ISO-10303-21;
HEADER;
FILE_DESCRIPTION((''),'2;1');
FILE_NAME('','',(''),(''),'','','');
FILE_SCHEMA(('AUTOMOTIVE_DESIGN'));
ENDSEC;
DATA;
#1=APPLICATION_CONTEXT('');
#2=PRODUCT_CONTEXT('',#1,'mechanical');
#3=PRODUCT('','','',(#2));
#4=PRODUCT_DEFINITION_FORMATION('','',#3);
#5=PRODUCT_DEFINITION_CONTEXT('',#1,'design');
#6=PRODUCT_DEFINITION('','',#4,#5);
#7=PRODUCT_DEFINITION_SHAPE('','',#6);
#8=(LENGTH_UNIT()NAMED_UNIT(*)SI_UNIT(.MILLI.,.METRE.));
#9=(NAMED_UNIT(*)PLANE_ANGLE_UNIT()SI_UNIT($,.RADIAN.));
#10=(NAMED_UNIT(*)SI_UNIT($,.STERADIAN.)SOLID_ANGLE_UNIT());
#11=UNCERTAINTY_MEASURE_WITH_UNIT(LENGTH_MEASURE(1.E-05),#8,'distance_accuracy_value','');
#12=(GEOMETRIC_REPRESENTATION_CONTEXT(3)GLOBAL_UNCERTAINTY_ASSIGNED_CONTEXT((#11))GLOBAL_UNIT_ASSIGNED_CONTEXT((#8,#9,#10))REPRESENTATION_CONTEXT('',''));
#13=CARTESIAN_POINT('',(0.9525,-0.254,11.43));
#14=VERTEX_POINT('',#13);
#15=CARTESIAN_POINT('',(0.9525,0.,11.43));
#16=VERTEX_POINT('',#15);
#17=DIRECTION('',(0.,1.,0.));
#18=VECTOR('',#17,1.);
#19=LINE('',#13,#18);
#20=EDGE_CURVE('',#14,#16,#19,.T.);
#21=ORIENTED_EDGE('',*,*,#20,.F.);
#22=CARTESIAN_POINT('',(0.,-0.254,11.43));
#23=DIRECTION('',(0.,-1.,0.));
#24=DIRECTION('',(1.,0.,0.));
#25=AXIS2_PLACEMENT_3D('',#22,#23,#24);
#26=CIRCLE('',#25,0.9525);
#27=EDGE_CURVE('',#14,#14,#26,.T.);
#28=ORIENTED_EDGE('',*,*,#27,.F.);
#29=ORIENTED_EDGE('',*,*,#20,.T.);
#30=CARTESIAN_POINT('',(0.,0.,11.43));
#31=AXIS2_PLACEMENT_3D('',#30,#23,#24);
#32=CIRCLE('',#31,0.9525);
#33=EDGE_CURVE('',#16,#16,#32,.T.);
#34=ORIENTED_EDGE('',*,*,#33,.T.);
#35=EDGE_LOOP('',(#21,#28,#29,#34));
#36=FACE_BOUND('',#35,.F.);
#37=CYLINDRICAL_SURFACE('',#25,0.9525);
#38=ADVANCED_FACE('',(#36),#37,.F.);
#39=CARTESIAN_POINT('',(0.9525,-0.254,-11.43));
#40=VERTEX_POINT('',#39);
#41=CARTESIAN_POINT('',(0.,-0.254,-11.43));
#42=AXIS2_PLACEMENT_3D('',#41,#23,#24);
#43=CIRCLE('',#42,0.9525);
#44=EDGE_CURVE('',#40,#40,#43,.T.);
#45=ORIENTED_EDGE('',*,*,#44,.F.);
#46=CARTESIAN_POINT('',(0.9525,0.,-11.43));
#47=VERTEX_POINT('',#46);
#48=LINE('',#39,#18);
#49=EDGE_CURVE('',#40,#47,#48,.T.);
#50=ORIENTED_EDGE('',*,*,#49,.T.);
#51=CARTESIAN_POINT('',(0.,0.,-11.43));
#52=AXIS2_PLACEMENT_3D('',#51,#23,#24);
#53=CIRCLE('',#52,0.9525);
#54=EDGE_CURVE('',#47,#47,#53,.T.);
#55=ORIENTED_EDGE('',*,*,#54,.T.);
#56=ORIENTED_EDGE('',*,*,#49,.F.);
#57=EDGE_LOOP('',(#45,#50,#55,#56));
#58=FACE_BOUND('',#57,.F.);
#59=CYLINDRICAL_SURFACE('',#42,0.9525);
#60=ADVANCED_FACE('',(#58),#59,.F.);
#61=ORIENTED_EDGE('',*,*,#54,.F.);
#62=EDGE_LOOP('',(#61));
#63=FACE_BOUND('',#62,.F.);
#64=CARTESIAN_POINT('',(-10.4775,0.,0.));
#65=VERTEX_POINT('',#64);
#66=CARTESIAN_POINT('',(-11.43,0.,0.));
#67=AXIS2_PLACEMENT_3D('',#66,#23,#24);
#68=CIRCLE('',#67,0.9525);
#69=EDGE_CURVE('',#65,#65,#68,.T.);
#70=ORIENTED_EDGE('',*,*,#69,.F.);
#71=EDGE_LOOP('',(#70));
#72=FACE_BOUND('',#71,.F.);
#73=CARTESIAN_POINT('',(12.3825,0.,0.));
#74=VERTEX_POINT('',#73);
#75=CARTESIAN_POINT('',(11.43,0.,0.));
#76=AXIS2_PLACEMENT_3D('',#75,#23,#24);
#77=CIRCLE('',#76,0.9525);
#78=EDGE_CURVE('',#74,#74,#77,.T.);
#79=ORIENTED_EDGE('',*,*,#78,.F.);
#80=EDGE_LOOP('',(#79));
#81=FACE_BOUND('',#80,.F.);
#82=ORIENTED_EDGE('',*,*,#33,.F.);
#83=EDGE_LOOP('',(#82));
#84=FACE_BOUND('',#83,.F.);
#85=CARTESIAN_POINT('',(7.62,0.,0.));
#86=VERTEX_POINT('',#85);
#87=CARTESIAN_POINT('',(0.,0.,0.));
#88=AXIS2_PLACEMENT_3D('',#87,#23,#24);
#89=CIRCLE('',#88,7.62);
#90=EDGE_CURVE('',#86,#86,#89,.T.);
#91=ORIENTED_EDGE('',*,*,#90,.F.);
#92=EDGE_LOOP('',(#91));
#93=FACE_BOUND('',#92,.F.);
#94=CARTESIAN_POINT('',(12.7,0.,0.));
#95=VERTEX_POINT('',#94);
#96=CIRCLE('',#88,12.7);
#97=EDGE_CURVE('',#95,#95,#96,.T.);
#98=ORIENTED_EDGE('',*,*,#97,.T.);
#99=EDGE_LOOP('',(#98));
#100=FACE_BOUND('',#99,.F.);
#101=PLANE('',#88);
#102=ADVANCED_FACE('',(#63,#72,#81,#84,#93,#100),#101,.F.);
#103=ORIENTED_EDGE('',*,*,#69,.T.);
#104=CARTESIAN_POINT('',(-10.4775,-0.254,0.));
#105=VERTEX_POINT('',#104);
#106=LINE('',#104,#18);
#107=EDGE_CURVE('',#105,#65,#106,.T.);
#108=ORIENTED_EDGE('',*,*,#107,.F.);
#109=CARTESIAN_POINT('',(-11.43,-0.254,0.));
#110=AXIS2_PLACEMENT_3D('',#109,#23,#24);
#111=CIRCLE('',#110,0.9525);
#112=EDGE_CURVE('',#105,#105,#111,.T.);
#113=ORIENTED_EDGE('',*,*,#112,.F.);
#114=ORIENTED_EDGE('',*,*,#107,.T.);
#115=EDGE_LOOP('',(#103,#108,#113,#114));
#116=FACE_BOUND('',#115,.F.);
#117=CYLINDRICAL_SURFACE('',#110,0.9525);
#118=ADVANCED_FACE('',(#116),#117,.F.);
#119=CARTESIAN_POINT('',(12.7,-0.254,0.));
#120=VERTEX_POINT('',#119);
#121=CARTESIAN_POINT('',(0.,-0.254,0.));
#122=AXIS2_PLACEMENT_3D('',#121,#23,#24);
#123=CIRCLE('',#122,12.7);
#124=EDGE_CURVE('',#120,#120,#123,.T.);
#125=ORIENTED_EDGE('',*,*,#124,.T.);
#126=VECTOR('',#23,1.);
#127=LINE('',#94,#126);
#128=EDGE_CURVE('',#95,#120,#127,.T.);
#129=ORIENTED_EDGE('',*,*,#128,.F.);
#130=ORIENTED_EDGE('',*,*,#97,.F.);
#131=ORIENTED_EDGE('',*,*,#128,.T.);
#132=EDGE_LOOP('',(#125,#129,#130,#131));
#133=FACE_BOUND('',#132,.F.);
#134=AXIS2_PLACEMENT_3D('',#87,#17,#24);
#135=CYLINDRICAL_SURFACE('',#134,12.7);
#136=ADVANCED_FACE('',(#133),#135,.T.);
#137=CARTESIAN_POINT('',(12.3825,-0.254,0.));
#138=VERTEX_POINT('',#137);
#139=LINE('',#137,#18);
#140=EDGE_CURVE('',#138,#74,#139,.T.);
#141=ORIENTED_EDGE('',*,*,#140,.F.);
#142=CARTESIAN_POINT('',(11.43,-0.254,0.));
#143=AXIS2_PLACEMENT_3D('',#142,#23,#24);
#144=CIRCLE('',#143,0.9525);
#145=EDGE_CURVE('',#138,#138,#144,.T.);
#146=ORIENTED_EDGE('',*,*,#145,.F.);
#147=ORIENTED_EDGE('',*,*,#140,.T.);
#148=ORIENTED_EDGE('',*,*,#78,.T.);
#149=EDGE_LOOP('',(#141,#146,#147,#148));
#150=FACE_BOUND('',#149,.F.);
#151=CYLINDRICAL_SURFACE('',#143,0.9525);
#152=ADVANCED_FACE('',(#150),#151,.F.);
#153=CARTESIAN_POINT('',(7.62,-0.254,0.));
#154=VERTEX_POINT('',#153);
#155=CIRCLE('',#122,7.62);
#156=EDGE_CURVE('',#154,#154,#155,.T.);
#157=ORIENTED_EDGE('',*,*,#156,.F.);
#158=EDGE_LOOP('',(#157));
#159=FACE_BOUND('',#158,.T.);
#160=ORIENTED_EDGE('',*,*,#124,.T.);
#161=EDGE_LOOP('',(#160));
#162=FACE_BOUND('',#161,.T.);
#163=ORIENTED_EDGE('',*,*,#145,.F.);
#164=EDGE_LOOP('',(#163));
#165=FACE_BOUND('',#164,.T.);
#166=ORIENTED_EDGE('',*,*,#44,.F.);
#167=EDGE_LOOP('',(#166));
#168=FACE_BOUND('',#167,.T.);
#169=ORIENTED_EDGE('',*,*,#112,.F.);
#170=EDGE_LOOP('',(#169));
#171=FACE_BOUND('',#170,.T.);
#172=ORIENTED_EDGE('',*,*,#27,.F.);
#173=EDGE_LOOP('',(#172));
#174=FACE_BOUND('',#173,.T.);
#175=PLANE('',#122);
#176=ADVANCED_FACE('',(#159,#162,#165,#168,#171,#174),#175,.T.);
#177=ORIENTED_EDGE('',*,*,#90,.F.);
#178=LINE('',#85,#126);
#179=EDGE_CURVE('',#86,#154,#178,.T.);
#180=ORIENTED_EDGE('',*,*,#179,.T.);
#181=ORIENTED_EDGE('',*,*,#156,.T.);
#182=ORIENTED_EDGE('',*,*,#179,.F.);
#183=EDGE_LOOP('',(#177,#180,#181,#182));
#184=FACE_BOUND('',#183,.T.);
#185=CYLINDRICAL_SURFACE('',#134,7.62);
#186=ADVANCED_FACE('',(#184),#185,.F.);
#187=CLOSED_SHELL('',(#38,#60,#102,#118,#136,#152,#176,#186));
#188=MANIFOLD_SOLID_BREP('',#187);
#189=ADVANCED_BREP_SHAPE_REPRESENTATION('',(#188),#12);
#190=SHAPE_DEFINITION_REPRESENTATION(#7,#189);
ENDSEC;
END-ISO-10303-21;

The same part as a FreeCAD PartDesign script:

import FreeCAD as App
import Part
import Sketcher
from FreeCAD import Vector
Q = App.Units.Quantity

doc = App.newDocument("Part")
body = doc.addObject("PartDesign::Body", "Body")

# Sketch on XZ plane
sketch1 = body.newObject("Sketcher::SketchObject", "Sketch")
sketch1.AttachmentSupport = (doc.getObject("XZ_Plane"), [""])
sketch1.MapMode = "FlatFace"
sketch1.addGeometry([
    Part.Circle(Vector(0, 0, 0), Vector(0, 0, 1), 13),
    Part.Circle(Vector(0, 0, 0), Vector(0, 0, 1), 8),
], False)
sketch1.addConstraint([
    Sketcher.Constraint("Coincident", 0, 3, -1, 1),
    Sketcher.Constraint("Coincident", 1, 3, -1, 1),
    Sketcher.Constraint("Diameter", 0, Q("1 in")),
    Sketcher.Constraint("Diameter", 1, Q("0.6 in")),
])
pad1 = body.newObject("PartDesign::Pad", "Pad")
pad1.Profile = sketch1
pad1.Length = Q("0.01 in")

# Sketch on XZ plane
sketch2 = body.newObject("Sketcher::SketchObject", "Sketch001")
sketch2.AttachmentSupport = (doc.getObject("XZ_Plane"), [""])
sketch2.MapMode = "FlatFace"
sketch2.AttachmentOffset = App.Placement(Vector(0, 0, 0.01 * 25.4), App.Rotation())
sketch2.addGeometry([
    Part.Circle(Vector(0, 11.4, 0), Vector(0, 0, 1), 1),
    Part.Circle(Vector(11.4, 0, 0), Vector(0, 0, 1), 1),
    Part.Circle(Vector(0, -11.4, 0), Vector(0, 0, 1), 1),
    Part.Circle(Vector(-11.4, 0, 0), Vector(0, 0, 1), 1),
], False)
sketch2.addConstraint([
    Sketcher.Constraint("Equal", 0, 1),
    Sketcher.Constraint("Equal", 1, 2),
    Sketcher.Constraint("Equal", 2, 3),
    Sketcher.Constraint("Symmetric", 0, 3, 2, 3, -1, 1),
    Sketcher.Constraint("Symmetric", 1, 3, 3, 3, -1, 1),
    Sketcher.Constraint("PointOnObject", 0, 3, -2),
    Sketcher.Constraint("PointOnObject", 1, 3, -1),
    Sketcher.Constraint("Diameter", 0, Q("0.075 in")),
    Sketcher.Constraint("DistanceY", 2, 3, 0, 3, Q("0.9 in")),
    Sketcher.Constraint("DistanceX", 3, 3, 1, 3, Q("0.9 in")),
])
pocket1 = body.newObject("PartDesign::Pocket", "Pocket")
pocket1.Profile = sketch2
pocket1.Length = Q("1 in")

doc.recompute()
